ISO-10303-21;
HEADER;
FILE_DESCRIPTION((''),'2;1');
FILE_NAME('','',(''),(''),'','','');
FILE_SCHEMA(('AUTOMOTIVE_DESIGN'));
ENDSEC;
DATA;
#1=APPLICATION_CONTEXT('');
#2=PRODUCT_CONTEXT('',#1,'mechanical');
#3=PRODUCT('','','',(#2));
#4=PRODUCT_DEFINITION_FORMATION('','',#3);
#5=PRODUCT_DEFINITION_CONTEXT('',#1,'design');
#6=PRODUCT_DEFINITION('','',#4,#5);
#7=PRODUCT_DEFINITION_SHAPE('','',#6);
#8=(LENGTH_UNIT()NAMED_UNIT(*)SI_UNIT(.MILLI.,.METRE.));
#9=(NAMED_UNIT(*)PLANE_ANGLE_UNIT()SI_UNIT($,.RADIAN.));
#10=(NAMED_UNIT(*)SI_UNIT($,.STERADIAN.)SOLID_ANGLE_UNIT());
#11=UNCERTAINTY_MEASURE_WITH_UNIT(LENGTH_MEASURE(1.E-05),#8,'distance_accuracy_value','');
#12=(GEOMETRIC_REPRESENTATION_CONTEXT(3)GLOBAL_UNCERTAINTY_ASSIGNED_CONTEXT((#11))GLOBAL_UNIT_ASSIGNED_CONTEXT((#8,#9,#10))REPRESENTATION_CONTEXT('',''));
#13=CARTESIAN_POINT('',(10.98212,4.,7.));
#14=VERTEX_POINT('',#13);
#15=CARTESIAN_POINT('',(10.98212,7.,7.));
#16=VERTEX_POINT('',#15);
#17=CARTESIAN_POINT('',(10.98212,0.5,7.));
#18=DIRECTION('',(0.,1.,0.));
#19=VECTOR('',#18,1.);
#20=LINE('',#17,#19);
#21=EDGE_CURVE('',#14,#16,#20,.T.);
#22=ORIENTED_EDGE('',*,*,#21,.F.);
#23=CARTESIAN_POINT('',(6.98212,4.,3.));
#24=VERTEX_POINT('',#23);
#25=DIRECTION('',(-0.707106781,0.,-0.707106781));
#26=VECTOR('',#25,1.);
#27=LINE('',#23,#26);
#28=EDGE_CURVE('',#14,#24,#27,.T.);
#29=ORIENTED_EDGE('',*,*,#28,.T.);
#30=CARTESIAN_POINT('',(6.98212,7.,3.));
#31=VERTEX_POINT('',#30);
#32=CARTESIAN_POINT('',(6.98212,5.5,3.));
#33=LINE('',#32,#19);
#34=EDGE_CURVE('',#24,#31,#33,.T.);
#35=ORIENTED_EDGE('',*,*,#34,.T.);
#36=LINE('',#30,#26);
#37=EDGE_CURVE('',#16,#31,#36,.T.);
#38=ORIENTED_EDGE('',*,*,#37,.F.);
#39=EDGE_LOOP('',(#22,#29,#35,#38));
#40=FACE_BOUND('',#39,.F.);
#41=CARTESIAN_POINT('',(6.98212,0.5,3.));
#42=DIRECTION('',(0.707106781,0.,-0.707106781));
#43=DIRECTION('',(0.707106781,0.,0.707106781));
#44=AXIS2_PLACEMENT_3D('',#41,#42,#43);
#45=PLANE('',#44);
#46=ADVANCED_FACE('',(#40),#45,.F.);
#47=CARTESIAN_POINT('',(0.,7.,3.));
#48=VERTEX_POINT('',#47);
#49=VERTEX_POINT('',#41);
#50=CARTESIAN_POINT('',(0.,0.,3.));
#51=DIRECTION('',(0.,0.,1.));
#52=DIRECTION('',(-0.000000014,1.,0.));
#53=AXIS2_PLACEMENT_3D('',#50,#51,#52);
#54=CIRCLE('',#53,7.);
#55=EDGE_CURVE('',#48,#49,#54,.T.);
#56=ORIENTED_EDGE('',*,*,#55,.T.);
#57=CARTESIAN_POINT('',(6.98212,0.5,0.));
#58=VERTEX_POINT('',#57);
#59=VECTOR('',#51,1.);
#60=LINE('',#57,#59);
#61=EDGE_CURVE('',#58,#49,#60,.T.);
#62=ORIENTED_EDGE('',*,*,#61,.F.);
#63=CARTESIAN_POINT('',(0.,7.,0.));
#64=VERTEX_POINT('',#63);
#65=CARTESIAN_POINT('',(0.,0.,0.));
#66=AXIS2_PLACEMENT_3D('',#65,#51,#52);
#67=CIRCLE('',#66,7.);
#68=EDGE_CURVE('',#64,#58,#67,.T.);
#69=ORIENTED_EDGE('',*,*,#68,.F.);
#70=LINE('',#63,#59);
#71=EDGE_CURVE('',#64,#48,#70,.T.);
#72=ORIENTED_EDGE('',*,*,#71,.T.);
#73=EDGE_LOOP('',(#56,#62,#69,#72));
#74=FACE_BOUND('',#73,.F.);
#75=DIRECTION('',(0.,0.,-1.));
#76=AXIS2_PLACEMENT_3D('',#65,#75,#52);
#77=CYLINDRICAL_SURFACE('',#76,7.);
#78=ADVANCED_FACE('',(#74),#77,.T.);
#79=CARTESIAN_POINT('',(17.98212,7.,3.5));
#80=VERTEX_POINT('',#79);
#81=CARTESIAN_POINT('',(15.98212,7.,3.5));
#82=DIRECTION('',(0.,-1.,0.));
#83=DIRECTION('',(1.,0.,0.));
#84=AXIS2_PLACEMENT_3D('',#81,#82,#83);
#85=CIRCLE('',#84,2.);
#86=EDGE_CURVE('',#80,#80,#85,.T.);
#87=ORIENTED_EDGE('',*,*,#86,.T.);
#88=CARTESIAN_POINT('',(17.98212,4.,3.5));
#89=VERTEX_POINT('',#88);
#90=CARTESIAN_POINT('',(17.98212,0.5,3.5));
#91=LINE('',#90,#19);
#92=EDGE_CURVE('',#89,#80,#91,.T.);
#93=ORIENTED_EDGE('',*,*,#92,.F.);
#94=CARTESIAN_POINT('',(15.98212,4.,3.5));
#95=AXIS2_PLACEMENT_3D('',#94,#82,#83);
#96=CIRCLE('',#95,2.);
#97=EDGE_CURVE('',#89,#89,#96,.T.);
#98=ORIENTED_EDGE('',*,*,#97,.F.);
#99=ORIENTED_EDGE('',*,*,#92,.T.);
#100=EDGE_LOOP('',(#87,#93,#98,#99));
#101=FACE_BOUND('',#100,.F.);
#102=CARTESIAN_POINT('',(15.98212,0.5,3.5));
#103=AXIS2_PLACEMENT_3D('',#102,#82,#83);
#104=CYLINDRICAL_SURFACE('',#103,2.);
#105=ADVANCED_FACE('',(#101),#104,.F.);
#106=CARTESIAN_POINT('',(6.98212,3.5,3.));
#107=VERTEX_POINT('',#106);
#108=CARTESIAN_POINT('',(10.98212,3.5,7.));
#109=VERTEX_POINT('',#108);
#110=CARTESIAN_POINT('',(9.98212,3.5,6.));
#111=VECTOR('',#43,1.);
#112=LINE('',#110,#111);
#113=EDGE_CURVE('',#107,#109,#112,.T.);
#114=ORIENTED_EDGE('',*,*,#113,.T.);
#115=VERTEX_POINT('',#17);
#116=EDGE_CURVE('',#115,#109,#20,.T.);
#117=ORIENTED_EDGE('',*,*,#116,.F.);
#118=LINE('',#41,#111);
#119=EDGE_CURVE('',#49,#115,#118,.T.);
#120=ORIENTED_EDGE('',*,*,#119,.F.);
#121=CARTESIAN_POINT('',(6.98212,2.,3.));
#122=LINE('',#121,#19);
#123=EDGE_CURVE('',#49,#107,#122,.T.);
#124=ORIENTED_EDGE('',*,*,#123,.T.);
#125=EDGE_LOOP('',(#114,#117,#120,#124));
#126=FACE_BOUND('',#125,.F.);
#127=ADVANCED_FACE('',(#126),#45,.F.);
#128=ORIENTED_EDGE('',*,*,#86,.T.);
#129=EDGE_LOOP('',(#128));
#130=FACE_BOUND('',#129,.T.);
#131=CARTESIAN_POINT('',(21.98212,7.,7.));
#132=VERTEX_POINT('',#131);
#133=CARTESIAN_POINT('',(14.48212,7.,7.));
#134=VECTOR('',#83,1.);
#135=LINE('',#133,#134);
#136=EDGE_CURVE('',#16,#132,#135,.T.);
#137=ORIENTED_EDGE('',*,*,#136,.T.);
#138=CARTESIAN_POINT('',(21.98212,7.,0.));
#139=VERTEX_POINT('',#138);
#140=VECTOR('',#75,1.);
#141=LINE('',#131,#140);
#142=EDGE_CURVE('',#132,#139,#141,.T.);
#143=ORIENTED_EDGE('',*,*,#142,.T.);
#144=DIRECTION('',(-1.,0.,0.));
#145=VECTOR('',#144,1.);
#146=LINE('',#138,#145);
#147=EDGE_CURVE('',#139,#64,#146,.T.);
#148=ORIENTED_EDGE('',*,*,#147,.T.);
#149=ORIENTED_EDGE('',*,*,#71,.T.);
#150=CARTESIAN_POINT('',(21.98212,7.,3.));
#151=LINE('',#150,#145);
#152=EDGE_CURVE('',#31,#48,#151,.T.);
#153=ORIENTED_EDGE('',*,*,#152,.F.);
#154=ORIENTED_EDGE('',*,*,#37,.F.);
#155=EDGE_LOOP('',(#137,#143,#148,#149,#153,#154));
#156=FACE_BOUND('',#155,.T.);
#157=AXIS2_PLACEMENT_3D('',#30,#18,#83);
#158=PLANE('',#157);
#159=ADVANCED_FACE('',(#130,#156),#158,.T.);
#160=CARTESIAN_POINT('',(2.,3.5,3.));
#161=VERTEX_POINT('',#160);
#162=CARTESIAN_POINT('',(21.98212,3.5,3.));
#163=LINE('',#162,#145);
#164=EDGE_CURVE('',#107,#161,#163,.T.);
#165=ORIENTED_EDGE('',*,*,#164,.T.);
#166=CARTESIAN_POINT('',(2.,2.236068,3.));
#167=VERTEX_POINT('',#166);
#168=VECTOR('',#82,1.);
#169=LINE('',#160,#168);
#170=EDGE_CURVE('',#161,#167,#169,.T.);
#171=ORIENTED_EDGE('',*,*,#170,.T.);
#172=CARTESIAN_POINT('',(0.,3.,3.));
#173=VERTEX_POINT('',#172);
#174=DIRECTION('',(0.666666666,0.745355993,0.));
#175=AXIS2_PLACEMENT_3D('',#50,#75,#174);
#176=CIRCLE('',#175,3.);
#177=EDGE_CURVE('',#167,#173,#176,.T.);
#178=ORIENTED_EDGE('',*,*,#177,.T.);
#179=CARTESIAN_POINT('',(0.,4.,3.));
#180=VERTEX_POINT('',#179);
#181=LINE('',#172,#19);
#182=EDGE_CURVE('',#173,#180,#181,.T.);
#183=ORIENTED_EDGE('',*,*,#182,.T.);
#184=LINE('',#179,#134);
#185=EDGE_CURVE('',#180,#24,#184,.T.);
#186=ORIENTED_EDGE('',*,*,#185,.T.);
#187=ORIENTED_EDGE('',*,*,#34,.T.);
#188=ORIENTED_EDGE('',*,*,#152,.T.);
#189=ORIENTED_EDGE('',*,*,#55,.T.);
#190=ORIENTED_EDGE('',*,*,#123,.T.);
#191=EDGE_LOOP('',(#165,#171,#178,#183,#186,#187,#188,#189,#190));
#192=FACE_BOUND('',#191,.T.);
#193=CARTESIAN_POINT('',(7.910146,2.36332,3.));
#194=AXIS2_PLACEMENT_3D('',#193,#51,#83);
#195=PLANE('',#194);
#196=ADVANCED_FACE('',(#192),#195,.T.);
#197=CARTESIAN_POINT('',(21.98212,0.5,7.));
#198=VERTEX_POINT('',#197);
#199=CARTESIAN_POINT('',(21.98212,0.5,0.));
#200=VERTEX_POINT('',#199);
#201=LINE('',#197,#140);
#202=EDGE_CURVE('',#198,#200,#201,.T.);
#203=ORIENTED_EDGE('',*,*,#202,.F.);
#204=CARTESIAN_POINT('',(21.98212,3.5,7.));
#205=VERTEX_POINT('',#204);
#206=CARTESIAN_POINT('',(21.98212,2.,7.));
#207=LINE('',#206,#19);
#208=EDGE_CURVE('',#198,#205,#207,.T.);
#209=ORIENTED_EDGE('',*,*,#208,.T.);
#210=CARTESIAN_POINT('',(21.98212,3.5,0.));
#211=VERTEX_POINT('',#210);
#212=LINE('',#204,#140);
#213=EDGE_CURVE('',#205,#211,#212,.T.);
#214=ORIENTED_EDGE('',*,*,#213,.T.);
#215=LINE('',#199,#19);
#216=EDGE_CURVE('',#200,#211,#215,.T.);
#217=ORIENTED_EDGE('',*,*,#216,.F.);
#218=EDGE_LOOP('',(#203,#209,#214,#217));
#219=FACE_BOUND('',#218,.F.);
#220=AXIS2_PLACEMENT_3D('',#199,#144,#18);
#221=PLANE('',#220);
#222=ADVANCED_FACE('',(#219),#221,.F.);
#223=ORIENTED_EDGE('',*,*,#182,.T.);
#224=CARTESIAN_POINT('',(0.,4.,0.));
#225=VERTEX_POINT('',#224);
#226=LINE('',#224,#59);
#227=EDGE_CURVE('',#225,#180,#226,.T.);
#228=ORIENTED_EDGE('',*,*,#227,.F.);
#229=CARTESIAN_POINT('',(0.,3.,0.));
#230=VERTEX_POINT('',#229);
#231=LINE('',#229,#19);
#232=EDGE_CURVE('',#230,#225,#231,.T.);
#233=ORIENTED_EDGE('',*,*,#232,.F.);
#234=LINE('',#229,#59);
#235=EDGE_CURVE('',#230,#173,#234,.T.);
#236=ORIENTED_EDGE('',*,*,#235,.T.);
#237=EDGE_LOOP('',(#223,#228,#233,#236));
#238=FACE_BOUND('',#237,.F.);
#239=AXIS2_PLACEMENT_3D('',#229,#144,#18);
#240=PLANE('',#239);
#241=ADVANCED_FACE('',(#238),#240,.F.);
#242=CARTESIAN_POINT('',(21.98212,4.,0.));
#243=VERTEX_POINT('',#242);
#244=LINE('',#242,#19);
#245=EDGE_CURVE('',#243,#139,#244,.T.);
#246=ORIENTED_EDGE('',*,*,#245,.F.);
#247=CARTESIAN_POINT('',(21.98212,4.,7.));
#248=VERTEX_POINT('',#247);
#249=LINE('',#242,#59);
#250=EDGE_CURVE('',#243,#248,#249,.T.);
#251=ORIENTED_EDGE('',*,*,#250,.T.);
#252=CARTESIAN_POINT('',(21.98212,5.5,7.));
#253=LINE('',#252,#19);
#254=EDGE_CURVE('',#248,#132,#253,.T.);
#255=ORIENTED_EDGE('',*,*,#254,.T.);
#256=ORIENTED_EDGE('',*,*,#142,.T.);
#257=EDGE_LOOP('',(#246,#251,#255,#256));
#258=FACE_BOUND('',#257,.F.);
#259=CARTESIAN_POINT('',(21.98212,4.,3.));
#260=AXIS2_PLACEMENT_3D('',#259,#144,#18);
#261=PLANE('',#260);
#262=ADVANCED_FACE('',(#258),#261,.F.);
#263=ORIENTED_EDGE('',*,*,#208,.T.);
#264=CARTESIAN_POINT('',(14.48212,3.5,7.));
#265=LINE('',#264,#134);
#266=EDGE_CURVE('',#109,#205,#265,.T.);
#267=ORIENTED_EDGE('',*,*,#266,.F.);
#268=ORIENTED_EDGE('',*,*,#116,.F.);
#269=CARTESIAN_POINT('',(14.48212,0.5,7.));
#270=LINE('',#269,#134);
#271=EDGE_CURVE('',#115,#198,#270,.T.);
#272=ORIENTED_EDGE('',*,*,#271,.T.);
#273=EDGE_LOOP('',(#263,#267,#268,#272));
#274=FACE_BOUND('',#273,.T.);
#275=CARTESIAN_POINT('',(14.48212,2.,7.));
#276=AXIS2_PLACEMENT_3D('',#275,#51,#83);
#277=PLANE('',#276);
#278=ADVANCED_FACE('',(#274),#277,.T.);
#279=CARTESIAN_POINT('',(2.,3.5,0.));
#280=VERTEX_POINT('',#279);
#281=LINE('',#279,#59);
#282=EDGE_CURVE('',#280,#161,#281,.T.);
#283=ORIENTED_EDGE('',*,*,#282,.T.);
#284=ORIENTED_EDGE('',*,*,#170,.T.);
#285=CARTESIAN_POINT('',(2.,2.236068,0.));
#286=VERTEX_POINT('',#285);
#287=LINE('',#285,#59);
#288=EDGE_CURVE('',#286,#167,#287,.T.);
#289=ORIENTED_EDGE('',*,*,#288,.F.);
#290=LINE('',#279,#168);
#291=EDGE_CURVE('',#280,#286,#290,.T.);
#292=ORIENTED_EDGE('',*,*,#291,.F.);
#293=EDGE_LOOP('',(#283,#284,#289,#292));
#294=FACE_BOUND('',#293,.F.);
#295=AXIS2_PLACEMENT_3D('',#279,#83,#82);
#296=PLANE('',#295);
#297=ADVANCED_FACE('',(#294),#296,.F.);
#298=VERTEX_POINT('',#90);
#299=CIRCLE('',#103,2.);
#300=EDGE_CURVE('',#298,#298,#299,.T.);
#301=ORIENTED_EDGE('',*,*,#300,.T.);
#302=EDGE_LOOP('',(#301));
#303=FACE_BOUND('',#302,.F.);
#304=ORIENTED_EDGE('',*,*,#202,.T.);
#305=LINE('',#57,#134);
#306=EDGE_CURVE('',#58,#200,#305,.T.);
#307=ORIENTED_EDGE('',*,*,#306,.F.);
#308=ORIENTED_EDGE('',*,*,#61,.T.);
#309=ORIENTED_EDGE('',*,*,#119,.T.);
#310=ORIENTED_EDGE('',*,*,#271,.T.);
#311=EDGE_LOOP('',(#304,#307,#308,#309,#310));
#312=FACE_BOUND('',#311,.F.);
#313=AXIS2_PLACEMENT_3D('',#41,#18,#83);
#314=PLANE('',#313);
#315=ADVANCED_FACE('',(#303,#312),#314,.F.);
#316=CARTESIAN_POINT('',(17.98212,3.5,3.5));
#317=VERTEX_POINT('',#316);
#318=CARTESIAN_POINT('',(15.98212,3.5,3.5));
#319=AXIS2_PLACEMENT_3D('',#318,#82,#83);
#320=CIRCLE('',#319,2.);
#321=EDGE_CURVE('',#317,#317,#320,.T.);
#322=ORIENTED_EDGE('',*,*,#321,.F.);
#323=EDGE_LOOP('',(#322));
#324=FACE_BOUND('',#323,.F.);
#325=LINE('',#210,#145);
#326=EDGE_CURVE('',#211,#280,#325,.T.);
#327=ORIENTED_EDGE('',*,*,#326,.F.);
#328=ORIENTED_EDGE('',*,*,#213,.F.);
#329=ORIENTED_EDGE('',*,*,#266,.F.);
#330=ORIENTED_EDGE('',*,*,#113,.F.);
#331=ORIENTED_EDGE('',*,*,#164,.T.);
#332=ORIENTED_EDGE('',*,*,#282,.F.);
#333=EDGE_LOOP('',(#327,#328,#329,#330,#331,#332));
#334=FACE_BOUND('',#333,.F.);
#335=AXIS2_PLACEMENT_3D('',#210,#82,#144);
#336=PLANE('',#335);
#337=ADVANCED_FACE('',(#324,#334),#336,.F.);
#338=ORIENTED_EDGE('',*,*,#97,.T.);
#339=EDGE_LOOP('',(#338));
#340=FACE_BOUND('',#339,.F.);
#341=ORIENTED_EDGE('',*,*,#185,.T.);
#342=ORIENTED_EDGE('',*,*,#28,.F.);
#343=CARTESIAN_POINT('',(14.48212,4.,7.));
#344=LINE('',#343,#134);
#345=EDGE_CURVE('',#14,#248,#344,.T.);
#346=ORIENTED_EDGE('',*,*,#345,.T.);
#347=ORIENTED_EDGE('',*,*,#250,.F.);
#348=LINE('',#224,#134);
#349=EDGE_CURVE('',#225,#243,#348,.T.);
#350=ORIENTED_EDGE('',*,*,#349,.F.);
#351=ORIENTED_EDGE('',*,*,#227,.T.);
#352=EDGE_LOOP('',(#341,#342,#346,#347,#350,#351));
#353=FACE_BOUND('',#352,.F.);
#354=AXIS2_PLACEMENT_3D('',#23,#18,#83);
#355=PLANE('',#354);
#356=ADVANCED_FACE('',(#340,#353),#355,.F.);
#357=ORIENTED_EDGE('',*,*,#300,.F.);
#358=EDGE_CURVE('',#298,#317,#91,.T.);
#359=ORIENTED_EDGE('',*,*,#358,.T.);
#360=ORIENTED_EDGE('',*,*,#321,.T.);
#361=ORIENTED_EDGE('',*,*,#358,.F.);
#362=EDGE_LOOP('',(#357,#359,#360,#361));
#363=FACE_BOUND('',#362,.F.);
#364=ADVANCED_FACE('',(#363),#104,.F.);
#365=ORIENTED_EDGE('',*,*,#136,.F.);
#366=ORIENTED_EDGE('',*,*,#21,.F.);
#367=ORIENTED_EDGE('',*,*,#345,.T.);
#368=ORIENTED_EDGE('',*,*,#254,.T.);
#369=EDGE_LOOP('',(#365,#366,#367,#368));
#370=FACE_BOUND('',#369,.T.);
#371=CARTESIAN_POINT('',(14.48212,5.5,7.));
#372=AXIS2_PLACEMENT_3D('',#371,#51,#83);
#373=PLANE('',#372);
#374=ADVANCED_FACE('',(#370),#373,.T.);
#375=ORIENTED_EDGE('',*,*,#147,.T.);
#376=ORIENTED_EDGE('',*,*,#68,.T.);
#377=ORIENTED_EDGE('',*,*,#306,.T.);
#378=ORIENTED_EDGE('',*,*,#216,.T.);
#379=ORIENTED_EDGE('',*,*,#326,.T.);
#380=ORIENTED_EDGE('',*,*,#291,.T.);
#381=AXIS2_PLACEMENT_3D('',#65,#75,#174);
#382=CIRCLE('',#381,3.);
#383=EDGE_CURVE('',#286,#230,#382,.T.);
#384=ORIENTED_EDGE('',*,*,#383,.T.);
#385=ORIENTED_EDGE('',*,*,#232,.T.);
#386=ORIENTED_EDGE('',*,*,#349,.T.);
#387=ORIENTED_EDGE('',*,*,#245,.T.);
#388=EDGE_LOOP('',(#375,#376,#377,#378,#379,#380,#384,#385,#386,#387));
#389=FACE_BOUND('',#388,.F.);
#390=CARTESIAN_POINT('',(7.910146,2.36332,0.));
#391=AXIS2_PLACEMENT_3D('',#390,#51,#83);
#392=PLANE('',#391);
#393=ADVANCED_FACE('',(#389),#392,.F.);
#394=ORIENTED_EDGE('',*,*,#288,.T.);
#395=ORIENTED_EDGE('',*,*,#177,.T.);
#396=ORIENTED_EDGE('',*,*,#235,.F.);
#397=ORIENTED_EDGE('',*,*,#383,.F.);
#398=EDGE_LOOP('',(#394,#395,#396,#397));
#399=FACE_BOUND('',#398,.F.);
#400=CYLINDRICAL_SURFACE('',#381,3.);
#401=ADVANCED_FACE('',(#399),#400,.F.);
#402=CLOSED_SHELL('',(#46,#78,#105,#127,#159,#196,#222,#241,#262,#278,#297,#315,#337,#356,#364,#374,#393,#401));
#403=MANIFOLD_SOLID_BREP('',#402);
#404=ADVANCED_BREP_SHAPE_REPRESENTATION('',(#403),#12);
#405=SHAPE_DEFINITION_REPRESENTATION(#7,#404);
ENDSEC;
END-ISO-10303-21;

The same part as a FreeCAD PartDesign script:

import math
import FreeCAD as App
import Part
import Sketcher

V = App.Vector


def add_polygon(sketch, points):
    """Adds a closed chain of lines whose ends are joined by coincident constraints."""
    first, n = sketch.GeometryCount, len(points)
    for a, b in zip(points, points[1:] + points[:1]):
        sketch.addGeometry(Part.LineSegment(App.Vector(*a, 0), App.Vector(*b, 0)), False)
    for i in range(n):
        sketch.addConstraint(Sketcher.Constraint("Coincident", first + i, 2, first + (i + 1) % n, 1))

doc = App.newDocument("Part")
params = doc.addObject("Spreadsheet::Sheet", "Params")
for row, (alias, value) in enumerate([
    ("sketch1_radius", "3 mm"),
    ("sketch1_radius2", "7 mm"),
    ("sketch1_width", "15 mm"),
    ("sketch1_height", "1 mm"),
    ("pad1_length", "3 mm"),
    ("sketch2_width", "15 mm"),
    ("sketch2_height", "3 mm"),
    ("pad2_length", "4 mm"),
    ("sketch3_width", "4 mm"),
    ("sketch4_diameter", "4 mm"),
], start=1):
    params.set(f"A{row}", alias)
    params.set(f"B{row}", "=" + value)
    params.setAlias(f"B{row}", alias)

body = doc.addObject("PartDesign::Body", "Body")

sketch1 = doc.addObject("Sketcher::SketchObject", "Sketch")
body.addObject(sketch1)
sketch1.AttachmentSupport = (doc.XY_Plane, [""])
sketch1.MapMode = "FlatFace"
sketch1.addGeometry([
    Part.ArcOfCircle(Part.Circle(V(0, 0, 0), V(0, 0, 1), 3), math.radians(90), math.radians(408)),
    Part.LineSegment(V(0, 3, 0), V(0, 4, 0)),
    Part.LineSegment(V(0, 4, 0), V(22, 4, 0)),
    Part.LineSegment(V(22, 4, 0), V(22, 7, 0)),
    Part.LineSegment(V(22, 7, 0), V(0, 7, 0)),
    Part.ArcOfCircle(Part.Circle(V(0, 0, 0), V(0, 0, 1), 7), math.radians(90), math.radians(364)),
    Part.LineSegment(V(7, 0.5, 0), V(22, 0.5, 0)),
    Part.LineSegment(V(22, 0.5, 0), V(22, 3.5, 0)),
    Part.LineSegment(V(22, 3.5, 0), V(2, 3.5, 0)),
    Part.LineSegment(V(2, 3.5, 0), V(2, 2.2, 0)),
], False)
sketch1.addConstraint([
    Sketcher.Constraint("Coincident", 0, 1, 1, 1),
    Sketcher.Constraint("Coincident", 1, 2, 2, 1),
    Sketcher.Constraint("Coincident", 2, 2, 3, 1),
    Sketcher.Constraint("Coincident", 3, 2, 4, 1),
    Sketcher.Constraint("Tangent", 4, 2, 5, 1),
    Sketcher.Constraint("Coincident", 5, 2, 6, 1),
    Sketcher.Constraint("Coincident", 6, 2, 7, 1),
    Sketcher.Constraint("Coincident", 7, 2, 8, 1),
    Sketcher.Constraint("Coincident", 8, 2, 9, 1),
    Sketcher.Constraint("Coincident", 9, 2, 0, 2),
    Sketcher.Constraint("Vertical", 1),
    Sketcher.Constraint("Horizontal", 2),
    Sketcher.Constraint("Vertical", 3),
    Sketcher.Constraint("Horizontal", 4),
    Sketcher.Constraint("Horizontal", 6),
    Sketcher.Constraint("Vertical", 7),
    Sketcher.Constraint("Horizontal", 8),
    Sketcher.Constraint("Vertical", 9),
    Sketcher.Constraint("Coincident", 0, 3, -1, 1),
    Sketcher.Constraint("Coincident", 5, 3, -1, 1),
    Sketcher.Constraint("PointOnObject", 0, 1, -2),
    Sketcher.Constraint("Vertical", 3, 2, 6, 2),
    Sketcher.Constraint("Equal", 3, 7),
    Sketcher.Constraint("Radius", 0, 3.0),
    Sketcher.Constraint("Radius", 5, 7.0),
    Sketcher.Constraint("DistanceX", 6, 1, 6, 2, 15.0),
    Sketcher.Constraint("DistanceY", 1, 1, 1, 2, 1.0),
    Sketcher.Constraint("DistanceX", -1, 1, 8, 2, 2.0),
    Sketcher.Constraint("DistanceY", -1, 1, 5, 2, 0.5),
])
sketch1.setExpression("Constraints[23]", "Params.sketch1_radius")
sketch1.setExpression("Constraints[24]", "Params.sketch1_radius2")
sketch1.setExpression("Constraints[25]", "Params.sketch1_width")
sketch1.setExpression("Constraints[26]", "Params.sketch1_height")
pad1 = doc.addObject("PartDesign::Pad", "Pad")
body.addObject(pad1)
pad1.Profile = sketch1
pad1.setExpression("Length", "Params.pad1_length")

sketch2 = doc.addObject("Sketcher::SketchObject", "Sketch001")
body.addObject(sketch2)
sketch2.AttachmentSupport = (doc.XY_Plane, [""])
sketch2.MapMode = "FlatFace"
sketch2.AttachmentOffset = App.Placement(V(0, 0, 3), App.Rotation())
add_polygon(sketch2, [(7, 7), (7, 4), (22, 4), (22, 7)])
add_polygon(sketch2, [(7, 3.5), (7, 0.5), (22, 0.5), (22, 3.5)])
sketch2.addConstraint([
    Sketcher.Constraint("Vertical", 0),
    Sketcher.Constraint("Horizontal", 1),
    Sketcher.Constraint("Vertical", 2),
    Sketcher.Constraint("Horizontal", 3),
    Sketcher.Constraint("Vertical", 4),
    Sketcher.Constraint("Horizontal", 5),
    Sketcher.Constraint("Vertical", 6),
    Sketcher.Constraint("Horizontal", 7),
    Sketcher.Constraint("Vertical", 3, 2, 4, 2),
    Sketcher.Constraint("Vertical", 2, 2, 5, 2),
    Sketcher.Constraint("Equal", 2, 4),
    Sketcher.Constraint("DistanceX", 1, 1, 1, 2, 15.0),
    Sketcher.Constraint("DistanceY", 0, 2, 0, 1, 3.0),
    Sketcher.Constraint("DistanceY", -1, 1, 0, 2, 4.0),
    Sketcher.Constraint("DistanceY", -1, 1, 4, 2, 0.5),
    Sketcher.Constraint("DistanceX", -1, 1, 0, 2, 6.98212),
])
sketch2.setExpression("Constraints[19]", "Params.sketch2_width")
sketch2.setExpression("Constraints[20]", "Params.sketch2_height")
pad2 = doc.addObject("PartDesign::Pad", "Pad001")
body.addObject(pad2)
pad2.Profile = sketch2
pad2.setExpression("Length", "Params.pad2_length")

sketch3 = doc.addObject("Sketcher::SketchObject", "Sketch002")
body.addObject(sketch3)
sketch3.AttachmentSupport = (doc.XZ_Plane, [""])
sketch3.MapMode = "FlatFace"
sketch3.AttachmentOffset = App.Placement(V(0, 0, -0.5), App.Rotation())
add_polygon(sketch3, [(7, 7), (7, 3), (11, 7)])
sketch3.addConstraint([
    Sketcher.Constraint("Vertical", 0),
    Sketcher.Constraint("Horizontal", 2),
    Sketcher.Constraint("Equal", 2, 0),
    Sketcher.Constraint("DistanceX", 2, 2, 2, 1, 4.0),
    Sketcher.Constraint("DistanceY", -1, 1, 0, 2, 3.0),
    Sketcher.Constraint("DistanceX", -1, 1, 0, 2, 6.98212),
])
sketch3.setExpression("Constraints[6]", "Params.sketch3_width")
pocket1 = doc.addObject("PartDesign::Pocket", "Pocket")
body.addObject(pocket1)
pocket1.Profile = sketch3
pocket1.Type = "ThroughAll"

sketch4 = doc.addObject("Sketcher::SketchObject", "Sketch003")
body.addObject(sketch4)
sketch4.AttachmentSupport = (doc.XZ_Plane, [""])
sketch4.MapMode = "FlatFace"
sketch4.AttachmentOffset = App.Placement(V(0, 0, -0.5), App.Rotation())
sketch4.addGeometry(Part.Circle(V(16, 3.5, 0), V(0, 0, 1), 2), False)
sketch4.addConstraint([
    Sketcher.Constraint("Diameter", 0, 4.0),
    Sketcher.Constraint("DistanceY", -1, 1, 0, 3, 3.5),
    Sketcher.Constraint("DistanceX", -1, 1, 0, 3, 15.98212),
])
sketch4.setExpression("Constraints[0]", "Params.sketch4_diameter")
pocket2 = doc.addObject("PartDesign::Pocket", "Pocket001")
body.addObject(pocket2)
pocket2.Profile = sketch4
pocket2.Type = "ThroughAll"

doc.recompute()
